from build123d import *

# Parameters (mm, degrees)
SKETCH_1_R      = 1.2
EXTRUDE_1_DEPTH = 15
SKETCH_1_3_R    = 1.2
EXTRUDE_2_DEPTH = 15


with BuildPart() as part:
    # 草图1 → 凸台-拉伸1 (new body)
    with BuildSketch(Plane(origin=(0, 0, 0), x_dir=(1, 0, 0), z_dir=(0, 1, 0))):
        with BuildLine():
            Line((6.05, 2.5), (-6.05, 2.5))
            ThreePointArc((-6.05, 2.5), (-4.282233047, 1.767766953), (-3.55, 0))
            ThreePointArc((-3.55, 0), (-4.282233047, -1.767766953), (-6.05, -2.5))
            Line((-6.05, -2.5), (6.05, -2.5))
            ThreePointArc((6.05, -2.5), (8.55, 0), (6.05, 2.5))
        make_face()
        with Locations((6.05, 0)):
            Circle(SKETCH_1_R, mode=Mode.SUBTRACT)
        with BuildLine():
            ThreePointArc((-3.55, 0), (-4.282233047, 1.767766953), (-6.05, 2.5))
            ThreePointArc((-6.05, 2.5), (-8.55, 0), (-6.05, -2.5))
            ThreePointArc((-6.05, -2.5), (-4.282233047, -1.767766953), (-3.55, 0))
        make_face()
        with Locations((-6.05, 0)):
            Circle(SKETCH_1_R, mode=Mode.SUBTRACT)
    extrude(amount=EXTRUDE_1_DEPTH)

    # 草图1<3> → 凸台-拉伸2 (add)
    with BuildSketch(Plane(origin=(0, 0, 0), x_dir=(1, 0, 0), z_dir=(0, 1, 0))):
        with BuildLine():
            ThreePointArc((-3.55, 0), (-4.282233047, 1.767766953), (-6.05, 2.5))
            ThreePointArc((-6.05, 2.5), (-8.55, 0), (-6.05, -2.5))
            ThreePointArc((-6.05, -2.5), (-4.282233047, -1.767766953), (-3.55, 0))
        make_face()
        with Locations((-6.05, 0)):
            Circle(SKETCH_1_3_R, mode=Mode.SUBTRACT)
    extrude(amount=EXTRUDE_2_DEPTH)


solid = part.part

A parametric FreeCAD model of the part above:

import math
import FreeCAD as App
import Part
import Sketcher

doc = App.newDocument("Part")
body = doc.addObject("PartDesign::Body", "Body")

sketch1 = body.newObject("Sketcher::SketchObject", "Sketch")
sketch1.AttachmentSupport = (doc.getObject("XZ_Plane"), [""])
sketch1.MapMode = "FlatFace"
sketch1.addGeometry(Part.LineSegment(App.Vector(6, -2.5, 0), App.Vector(-6, -2.5, 0)), False)
sketch1.addGeometry(Part.ArcOfCircle(Part.Circle(App.Vector(-6, 0, 0), App.Vector(0, 0, 1), 2.5), math.radians(90), math.radians(270)), False)
sketch1.addGeometry(Part.LineSegment(App.Vector(-6, 2.5, 0), App.Vector(6, 2.5, 0)), False)
sketch1.addGeometry(Part.ArcOfCircle(Part.Circle(App.Vector(6, 0, 0), App.Vector(0, 0, 1), 2.5), math.radians(-90), math.radians(90)), False)
sketch1.addGeometry(Part.Circle(App.Vector(-6, 0, 0), App.Vector(0, 0, 1), 1.2), False)
sketch1.addGeometry(Part.Circle(App.Vector(6, 0, 0), App.Vector(0, 0, 1), 1.2), False)
sketch1.addConstraint(Sketcher.Constraint("Tangent", 0, 2, 1, 2))
sketch1.addConstraint(Sketcher.Constraint("Tangent", 1, 1, 2, 1))
sketch1.addConstraint(Sketcher.Constraint("Tangent", 2, 2, 3, 2))
sketch1.addConstraint(Sketcher.Constraint("Tangent", 3, 1, 0, 1))
sketch1.addConstraint(Sketcher.Constraint("Horizontal", 0))
sketch1.addConstraint(Sketcher.Constraint("Horizontal", 2))
sketch1.addConstraint(Sketcher.Constraint("Coincident", 4, 3, 1, 3))
sketch1.addConstraint(Sketcher.Constraint("Coincident", 5, 3, 3, 3))
sketch1.addConstraint(Sketcher.Constraint("Equal", 4, 5))
sketch1.addConstraint(Sketcher.Constraint("Symmetric", 1, 3, 3, 3, -1, 1))
sketch1.addConstraint(Sketcher.Constraint("Diameter", 4, 2.4))
sketch1.addConstraint(Sketcher.Constraint("Radius", 1, 2.5))
sketch1.addConstraint(Sketcher.Constraint("DistanceX", 0, 2, 0, 1, 12.1))
pad1 = body.newObject("PartDesign::Pad", "Pad")
pad1.Profile = sketch1
pad1.Length = 15
pad1.Reversed = True

sketch2 = body.newObject("Sketcher::SketchObject", "Sketch001")
sketch2.AttachmentSupport = (doc.getObject("XZ_Plane"), [""])
sketch2.MapMode = "FlatFace"
sketch2.addGeometry(Part.ArcOfCircle(Part.Circle(App.Vector(-6, 0, 0), App.Vector(0, 0, 1), 2.5), math.radians(-90), math.radians(0)), False)
sketch2.addGeometry(Part.ArcOfCircle(Part.Circle(App.Vector(-6, 0, 0), App.Vector(0, 0, 1), 2.5), math.radians(90), math.radians(270)), False)
sketch2.addGeometry(Part.ArcOfCircle(Part.Circle(App.Vector(-6, 0, 0), App.Vector(0, 0, 1), 2.5), math.radians(0), math.radians(90)), False)
sketch2.addGeometry(Part.Circle(App.Vector(-6, 0, 0), App.Vector(0, 0, 1), 1.2), False)
sketch2.addConstraint(Sketcher.Constraint("Tangent", 0, 1, 1, 2))
sketch2.addConstraint(Sketcher.Constraint("Tangent", 1, 1, 2, 2))
sketch2.addConstraint(Sketcher.Constraint("Tangent", 2, 1, 0, 2))
sketch2.addConstraint(Sketcher.Constraint("Coincident", 3, 3, 0, 3))
sketch2.addConstraint(Sketcher.Constraint("Symmetric", 0, 1, 1, 1, -1))
sketch2.addConstraint(Sketcher.Constraint("PointOnObject", 2, 1, -1))
sketch2.addConstraint(Sketcher.Constraint("Vertical", 3, 3, 0, 1))
sketch2.addConstraint(Sketcher.Constraint("Diameter", 3, 2.4))
sketch2.addConstraint(Sketcher.Constraint("Radius", 0, 2.5))
sketch2.addConstraint(Sketcher.Constraint("DistanceX", 0, 3, -1, 1, 6.05))
pad2 = body.newObject("PartDesign::Pad", "Pad001")
pad2.Profile = sketch2
pad2.Length = 15
pad2.Reversed = True

doc.recompute()
